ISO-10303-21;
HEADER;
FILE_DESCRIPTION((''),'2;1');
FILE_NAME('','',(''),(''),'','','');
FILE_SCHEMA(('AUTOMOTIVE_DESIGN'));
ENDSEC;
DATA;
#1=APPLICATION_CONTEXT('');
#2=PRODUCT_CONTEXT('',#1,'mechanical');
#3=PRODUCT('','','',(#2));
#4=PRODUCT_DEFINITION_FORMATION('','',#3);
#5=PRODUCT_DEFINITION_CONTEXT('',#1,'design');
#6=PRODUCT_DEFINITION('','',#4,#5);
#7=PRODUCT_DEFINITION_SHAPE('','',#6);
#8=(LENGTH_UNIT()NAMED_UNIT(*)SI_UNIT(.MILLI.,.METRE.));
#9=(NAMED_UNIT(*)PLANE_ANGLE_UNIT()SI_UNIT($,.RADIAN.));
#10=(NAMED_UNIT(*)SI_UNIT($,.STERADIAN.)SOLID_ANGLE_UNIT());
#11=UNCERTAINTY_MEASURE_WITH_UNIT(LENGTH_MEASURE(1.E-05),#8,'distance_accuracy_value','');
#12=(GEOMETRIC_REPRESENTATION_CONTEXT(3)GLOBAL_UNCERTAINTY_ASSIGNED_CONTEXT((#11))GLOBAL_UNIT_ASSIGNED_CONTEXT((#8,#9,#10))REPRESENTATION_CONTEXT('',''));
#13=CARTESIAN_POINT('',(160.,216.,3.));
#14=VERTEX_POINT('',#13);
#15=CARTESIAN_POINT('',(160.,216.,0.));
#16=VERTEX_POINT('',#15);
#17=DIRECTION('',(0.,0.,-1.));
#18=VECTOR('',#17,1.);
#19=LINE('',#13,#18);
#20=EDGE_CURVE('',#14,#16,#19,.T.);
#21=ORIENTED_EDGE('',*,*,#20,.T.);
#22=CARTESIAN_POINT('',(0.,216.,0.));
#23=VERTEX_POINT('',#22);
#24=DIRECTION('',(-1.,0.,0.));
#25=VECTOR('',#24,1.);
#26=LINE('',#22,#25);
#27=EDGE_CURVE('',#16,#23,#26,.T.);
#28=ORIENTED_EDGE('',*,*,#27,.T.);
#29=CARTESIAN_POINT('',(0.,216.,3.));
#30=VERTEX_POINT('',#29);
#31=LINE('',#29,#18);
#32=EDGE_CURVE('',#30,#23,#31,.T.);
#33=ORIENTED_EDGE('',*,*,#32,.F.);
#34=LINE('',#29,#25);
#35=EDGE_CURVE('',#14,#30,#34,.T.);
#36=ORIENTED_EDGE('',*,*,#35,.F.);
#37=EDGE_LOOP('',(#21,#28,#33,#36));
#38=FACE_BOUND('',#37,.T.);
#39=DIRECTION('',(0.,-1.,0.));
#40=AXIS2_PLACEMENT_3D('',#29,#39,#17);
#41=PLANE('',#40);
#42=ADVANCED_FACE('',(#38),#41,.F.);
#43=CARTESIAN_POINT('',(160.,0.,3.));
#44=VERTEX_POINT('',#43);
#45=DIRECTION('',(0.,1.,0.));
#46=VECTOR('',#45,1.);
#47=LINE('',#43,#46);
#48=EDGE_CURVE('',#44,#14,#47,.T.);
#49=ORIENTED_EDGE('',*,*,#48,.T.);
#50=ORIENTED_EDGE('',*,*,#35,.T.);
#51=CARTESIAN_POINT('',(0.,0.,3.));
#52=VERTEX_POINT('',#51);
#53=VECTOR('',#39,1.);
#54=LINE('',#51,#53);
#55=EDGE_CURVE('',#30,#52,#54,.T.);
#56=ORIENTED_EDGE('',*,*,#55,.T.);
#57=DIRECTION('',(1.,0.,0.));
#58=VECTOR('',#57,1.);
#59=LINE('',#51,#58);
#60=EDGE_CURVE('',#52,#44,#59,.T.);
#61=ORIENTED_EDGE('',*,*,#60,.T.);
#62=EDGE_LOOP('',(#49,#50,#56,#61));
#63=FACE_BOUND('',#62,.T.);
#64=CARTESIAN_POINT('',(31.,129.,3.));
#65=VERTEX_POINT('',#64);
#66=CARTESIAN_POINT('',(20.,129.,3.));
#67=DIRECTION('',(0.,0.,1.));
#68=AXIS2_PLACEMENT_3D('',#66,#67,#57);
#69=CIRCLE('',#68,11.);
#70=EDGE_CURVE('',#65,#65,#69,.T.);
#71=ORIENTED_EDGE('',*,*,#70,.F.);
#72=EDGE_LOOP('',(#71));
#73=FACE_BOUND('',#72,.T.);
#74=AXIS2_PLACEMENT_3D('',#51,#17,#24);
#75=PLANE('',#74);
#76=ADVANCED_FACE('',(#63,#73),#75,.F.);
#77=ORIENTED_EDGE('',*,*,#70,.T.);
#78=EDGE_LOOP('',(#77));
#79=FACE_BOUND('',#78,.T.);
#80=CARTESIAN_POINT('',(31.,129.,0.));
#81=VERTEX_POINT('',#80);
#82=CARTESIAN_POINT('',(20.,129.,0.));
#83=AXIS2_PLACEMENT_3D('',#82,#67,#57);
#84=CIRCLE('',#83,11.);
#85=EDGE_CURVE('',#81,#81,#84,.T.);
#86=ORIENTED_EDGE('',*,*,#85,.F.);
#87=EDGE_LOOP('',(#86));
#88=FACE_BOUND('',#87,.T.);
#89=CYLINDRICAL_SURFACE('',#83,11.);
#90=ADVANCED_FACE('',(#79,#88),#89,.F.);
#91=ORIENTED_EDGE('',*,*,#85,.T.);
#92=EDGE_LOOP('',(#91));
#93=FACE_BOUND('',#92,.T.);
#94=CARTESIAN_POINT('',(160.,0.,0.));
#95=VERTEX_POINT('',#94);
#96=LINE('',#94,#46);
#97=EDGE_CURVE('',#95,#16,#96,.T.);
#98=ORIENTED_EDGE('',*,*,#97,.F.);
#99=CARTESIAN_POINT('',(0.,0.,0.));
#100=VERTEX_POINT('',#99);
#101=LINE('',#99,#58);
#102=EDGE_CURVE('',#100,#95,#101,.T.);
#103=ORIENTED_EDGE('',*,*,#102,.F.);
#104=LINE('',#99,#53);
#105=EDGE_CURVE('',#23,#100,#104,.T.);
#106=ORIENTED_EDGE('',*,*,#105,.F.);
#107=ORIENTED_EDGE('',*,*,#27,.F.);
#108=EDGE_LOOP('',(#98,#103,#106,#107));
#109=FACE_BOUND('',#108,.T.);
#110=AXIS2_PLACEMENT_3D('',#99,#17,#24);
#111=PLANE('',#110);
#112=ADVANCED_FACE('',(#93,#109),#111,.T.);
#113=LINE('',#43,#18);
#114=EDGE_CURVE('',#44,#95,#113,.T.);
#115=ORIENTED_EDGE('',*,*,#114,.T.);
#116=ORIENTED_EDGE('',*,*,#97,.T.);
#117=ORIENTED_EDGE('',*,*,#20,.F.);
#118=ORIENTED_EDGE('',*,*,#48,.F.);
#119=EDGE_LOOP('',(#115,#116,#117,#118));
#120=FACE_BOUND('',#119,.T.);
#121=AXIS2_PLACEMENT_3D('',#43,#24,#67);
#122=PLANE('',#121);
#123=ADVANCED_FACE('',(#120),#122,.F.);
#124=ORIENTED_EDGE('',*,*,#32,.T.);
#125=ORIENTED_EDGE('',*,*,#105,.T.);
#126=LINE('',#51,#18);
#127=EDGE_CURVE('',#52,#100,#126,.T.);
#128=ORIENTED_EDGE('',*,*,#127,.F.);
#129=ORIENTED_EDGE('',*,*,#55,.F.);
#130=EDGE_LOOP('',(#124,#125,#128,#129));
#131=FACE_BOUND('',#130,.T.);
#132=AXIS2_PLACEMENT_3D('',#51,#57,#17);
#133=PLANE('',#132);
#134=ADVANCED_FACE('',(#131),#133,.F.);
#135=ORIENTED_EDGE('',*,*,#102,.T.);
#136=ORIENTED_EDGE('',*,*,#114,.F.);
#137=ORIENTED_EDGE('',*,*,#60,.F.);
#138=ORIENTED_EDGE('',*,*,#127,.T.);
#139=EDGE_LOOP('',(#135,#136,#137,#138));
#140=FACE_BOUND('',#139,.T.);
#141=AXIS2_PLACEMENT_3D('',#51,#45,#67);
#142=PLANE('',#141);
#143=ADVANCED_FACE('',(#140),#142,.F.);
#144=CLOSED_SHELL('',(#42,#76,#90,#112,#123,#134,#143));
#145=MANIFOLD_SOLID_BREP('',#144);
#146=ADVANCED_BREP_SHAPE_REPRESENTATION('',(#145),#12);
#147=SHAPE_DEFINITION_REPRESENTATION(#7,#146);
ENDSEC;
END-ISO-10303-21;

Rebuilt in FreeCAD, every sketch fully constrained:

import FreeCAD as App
import Part
import Sketcher
Q = App.Units.Quantity

doc = App.newDocument("Part")
body = doc.addObject("PartDesign::Body", "Body")

# Sketch on XY plane
sketch1 = doc.addObject("Sketcher::SketchObject", "Sketch")
body.addObject(sketch1)
sketch1.AttachmentSupport = (doc.XY_Plane, [""])
sketch1.MapMode = "FlatFace"
sketch1.addGeometry(Part.LineSegment(App.Vector(0, 216, 0), App.Vector(0, 0, 0)), False)
sketch1.addGeometry(Part.LineSegment(App.Vector(0, 0, 0), App.Vector(160, 0, 0)), False)
sketch1.addGeometry(Part.LineSegment(App.Vector(160, 0, 0), App.Vector(160, 216, 0)), False)
sketch1.addGeometry(Part.LineSegment(App.Vector(160, 216, 0), App.Vector(0, 216, 0)), False)
sketch1.addConstraint(Sketcher.Constraint("Coincident", 0, 2, 1, 1))
sketch1.addConstraint(Sketcher.Constraint("Coincident", 1, 2, 2, 1))
sketch1.addConstraint(Sketcher.Constraint("Coincident", 2, 2, 3, 1))
sketch1.addConstraint(Sketcher.Constraint("Coincident", 3, 2, 0, 1))
sketch1.addConstraint(Sketcher.Constraint("Vertical", 0))
sketch1.addConstraint(Sketcher.Constraint("Horizontal", 1))
sketch1.addConstraint(Sketcher.Constraint("Vertical", 2))
sketch1.addConstraint(Sketcher.Constraint("Horizontal", 3))
sketch1.addConstraint(Sketcher.Constraint("Coincident", 0, 2, -1, 1))
sketch1.addConstraint(Sketcher.Constraint("DistanceX", 1, 1, 1, 2, Q("160 mm")))
sketch1.addConstraint(Sketcher.Constraint("DistanceY", 0, 2, 0, 1, Q("216 mm")))
pad1 = doc.addObject("PartDesign::Pad", "Pad")
body.addObject(pad1)
pad1.Profile = sketch1
pad1.Length = 3

# Sketch on XY plane
sketch2 = doc.addObject("Sketcher::SketchObject", "Sketch001")
body.addObject(sketch2)
sketch2.AttachmentSupport = (doc.XY_Plane, [""])
sketch2.MapMode = "FlatFace"
sketch2.AttachmentOffset = App.Placement(App.Vector(0, 0, 3), App.Rotation())
sketch2.addGeometry(Part.Circle(App.Vector(20, 129, 0), App.Vector(0, 0, 1), 11), False)
sketch2.addConstraint(Sketcher.Constraint("Diameter", 0, Q("22 mm")))
sketch2.addConstraint(Sketcher.Constraint("DistanceX", -1, 1, 0, 3, Q("20 mm")))
sketch2.addConstraint(Sketcher.Constraint("DistanceY", -1, 1, 0, 3, Q("129 mm")))
pocket1 = doc.addObject("PartDesign::Pocket", "Pocket")
body.addObject(pocket1)
pocket1.Profile = sketch2
pocket1.Length = 3

doc.recompute()
